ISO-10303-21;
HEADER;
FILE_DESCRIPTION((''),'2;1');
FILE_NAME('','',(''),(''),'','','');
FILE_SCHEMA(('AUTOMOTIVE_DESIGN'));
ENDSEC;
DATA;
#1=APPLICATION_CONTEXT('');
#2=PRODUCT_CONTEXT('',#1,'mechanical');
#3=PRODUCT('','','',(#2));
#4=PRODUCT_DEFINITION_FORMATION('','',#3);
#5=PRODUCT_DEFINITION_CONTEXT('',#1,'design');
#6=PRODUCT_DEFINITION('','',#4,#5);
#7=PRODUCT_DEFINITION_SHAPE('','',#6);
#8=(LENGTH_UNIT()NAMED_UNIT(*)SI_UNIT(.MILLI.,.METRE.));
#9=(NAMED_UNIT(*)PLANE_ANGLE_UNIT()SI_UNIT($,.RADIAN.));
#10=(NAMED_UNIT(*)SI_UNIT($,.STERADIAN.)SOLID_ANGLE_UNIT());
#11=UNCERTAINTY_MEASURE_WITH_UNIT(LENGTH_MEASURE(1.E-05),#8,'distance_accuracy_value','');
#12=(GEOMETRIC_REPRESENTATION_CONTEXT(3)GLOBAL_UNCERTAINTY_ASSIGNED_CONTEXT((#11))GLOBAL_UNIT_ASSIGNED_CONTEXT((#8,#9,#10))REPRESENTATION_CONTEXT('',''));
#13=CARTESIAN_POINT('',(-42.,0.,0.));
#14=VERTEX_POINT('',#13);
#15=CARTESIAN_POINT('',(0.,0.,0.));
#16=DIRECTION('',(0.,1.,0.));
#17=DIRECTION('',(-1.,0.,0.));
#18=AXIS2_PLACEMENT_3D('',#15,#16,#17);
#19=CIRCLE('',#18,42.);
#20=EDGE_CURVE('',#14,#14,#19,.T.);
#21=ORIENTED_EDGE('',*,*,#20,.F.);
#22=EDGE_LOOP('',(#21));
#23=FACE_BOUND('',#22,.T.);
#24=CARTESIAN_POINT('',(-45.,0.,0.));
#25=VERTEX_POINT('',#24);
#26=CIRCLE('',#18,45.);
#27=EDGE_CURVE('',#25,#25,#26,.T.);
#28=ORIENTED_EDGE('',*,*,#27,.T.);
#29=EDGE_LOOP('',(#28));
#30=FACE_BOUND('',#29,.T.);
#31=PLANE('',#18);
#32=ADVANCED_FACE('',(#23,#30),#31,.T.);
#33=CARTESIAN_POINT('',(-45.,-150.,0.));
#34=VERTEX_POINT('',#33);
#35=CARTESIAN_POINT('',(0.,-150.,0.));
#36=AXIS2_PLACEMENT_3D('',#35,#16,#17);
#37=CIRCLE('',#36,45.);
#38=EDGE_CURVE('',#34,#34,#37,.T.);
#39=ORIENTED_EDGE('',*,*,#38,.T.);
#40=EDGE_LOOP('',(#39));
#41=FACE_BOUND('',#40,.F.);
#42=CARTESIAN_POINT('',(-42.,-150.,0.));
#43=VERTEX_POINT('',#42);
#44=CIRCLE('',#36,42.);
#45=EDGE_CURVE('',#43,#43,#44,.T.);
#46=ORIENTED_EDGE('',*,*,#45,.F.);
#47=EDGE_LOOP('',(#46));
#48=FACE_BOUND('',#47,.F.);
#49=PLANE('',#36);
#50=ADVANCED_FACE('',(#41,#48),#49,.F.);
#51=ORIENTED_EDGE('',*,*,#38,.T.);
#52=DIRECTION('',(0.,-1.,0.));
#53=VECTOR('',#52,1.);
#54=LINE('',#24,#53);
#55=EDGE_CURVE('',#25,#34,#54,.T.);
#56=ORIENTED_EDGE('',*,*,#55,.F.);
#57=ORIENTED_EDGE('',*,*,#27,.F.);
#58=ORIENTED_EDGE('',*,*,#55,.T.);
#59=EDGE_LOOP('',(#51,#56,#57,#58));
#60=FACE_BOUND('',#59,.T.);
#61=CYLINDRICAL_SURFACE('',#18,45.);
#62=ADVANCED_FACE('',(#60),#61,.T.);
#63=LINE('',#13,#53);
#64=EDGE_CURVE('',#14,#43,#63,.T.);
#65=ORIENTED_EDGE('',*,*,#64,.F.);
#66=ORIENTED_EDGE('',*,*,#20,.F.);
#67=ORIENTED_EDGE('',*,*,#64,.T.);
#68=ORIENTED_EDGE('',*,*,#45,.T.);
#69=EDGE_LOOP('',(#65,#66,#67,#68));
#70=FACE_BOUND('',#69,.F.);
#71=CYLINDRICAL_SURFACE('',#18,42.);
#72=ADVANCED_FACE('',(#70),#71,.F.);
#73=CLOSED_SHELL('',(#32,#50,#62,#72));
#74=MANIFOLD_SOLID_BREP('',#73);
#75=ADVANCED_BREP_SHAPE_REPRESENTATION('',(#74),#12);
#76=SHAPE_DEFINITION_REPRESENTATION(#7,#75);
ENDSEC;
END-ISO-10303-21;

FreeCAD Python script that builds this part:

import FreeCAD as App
import Part
import Sketcher
Q = App.Units.Quantity

doc = App.newDocument("Part")
body = doc.addObject("PartDesign::Body", "Body")

sketch1 = body.newObject("Sketcher::SketchObject", "Sketch")
sketch1.AttachmentSupport = (doc.getObject("XZ_Plane"), [""])
sketch1.MapMode = "FlatFace"
sketch1.addGeometry([
    Part.Circle(App.Vector(0, 0, 0), App.Vector(0, 0, 1), 45),
    Part.Circle(App.Vector(0, 0, 0), App.Vector(0, 0, 1), 42),
], False)
sketch1.addConstraint([
    Sketcher.Constraint("Coincident", 0, 3, -1, 1),
    Sketcher.Constraint("Coincident", 1, 3, -1, 1),
    Sketcher.Constraint("Diameter", 0, Q("90 mm")),
    Sketcher.Constraint("Diameter", 1, Q("84 mm")),
])
pad1 = body.newObject("PartDesign::Pad", "Pad")
pad1.Profile = sketch1
pad1.Length = 150

doc.recompute()
